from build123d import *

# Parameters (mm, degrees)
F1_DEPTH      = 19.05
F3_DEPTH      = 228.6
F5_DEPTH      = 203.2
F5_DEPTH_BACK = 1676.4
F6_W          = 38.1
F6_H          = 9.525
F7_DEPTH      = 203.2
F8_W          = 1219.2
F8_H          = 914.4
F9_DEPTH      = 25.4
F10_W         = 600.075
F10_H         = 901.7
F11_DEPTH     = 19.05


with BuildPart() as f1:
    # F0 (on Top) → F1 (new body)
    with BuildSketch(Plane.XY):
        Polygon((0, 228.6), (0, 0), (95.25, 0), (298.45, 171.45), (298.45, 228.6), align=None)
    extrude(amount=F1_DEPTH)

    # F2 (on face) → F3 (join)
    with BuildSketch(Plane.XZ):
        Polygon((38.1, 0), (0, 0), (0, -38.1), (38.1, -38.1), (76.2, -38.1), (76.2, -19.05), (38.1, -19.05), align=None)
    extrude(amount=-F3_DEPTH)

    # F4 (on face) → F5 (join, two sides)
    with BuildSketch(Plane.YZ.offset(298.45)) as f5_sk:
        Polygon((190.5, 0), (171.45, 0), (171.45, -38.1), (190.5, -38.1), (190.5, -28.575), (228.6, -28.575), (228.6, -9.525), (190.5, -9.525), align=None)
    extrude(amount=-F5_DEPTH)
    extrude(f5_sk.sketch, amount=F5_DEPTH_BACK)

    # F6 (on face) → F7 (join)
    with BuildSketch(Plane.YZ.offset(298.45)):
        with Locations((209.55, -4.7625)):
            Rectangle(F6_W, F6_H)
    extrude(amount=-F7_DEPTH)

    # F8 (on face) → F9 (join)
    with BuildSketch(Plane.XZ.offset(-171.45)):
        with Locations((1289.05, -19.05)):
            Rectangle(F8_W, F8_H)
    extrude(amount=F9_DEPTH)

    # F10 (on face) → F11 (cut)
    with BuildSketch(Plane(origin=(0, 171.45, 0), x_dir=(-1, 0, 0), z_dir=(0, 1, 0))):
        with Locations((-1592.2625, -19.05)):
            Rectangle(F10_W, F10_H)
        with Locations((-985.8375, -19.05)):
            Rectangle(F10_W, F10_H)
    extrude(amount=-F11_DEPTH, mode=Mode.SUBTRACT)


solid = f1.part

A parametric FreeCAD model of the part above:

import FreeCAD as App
import Part
import Sketcher

V = App.Vector
Q = App.Units.Quantity


def add_polygon(sketch, points):
    """Adds a closed chain of lines whose ends are joined by coincident constraints."""
    first, n = sketch.GeometryCount, len(points)
    for a, b in zip(points, points[1:] + points[:1]):
        sketch.addGeometry(Part.LineSegment(App.Vector(*a, 0), App.Vector(*b, 0)), False)
    for i in range(n):
        sketch.addConstraint(Sketcher.Constraint("Coincident", first + i, 2, first + (i + 1) % n, 1))

doc = App.newDocument("Part")
body = doc.addObject("PartDesign::Body", "Body")

# Sketch on XY plane
sketch1 = body.newObject("Sketcher::SketchObject", "Sketch")
sketch1.AttachmentSupport = (doc.getObject("XY_Plane"), [""])
sketch1.MapMode = "FlatFace"
add_polygon(sketch1, [(0, 228.6), (0, 0), (95.25, 0), (298.45, 171.45), (298.45, 228.6)])  # lines 0-4
sketch1.addConstraint(Sketcher.Constraint("Vertical", 0))
sketch1.addConstraint(Sketcher.Constraint("Horizontal", 1))
sketch1.addConstraint(Sketcher.Constraint("Vertical", 3))
sketch1.addConstraint(Sketcher.Constraint("Horizontal", 4))
sketch1.addConstraint(Sketcher.Constraint("Coincident", 0, 2, -1, 1))
sketch1.addConstraint(Sketcher.Constraint("DistanceY", 0, 2, 0, 1, Q("9 in")))
sketch1.addConstraint(Sketcher.Constraint("DistanceX", 1, 2, 2, 2, Q("8 in")))
sketch1.addConstraint(Sketcher.Constraint("DistanceX", 1, 1, 1, 2, Q("3.75 in")))
sketch1.addConstraint(Sketcher.Constraint("DistanceY", 3, 1, 3, 2, Q("2.25 in")))
pad1 = body.newObject("PartDesign::Pad", "Pad")
pad1.Profile = sketch1
pad1.Length = Q("0.75 in")

# Sketch on XZ plane
sketch2 = body.newObject("Sketcher::SketchObject", "Sketch001")
sketch2.AttachmentSupport = (doc.getObject("XZ_Plane"), [""])
sketch2.MapMode = "FlatFace"
add_polygon(sketch2, [(38.1, 0), (0, 0), (0, -38.1), (76.2, -38.1), (76.2, -19.05), (38.1, -19.05)])  # lines 0-5
sketch2.addConstraint(Sketcher.Constraint("Horizontal", 0))
sketch2.addConstraint(Sketcher.Constraint("Vertical", 1))
sketch2.addConstraint(Sketcher.Constraint("Horizontal", 2))
sketch2.addConstraint(Sketcher.Constraint("Vertical", 3))
sketch2.addConstraint(Sketcher.Constraint("Horizontal", 4))
sketch2.addConstraint(Sketcher.Constraint("Vertical", 5))
sketch2.addConstraint(Sketcher.Constraint("Coincident", 0, 2, -1, 1))
sketch2.addConstraint(Sketcher.Constraint("Equal", 0, 4))
sketch2.addConstraint(Sketcher.Constraint("Equal", 4, 1))
sketch2.addConstraint(Sketcher.Constraint("Equal", 3, 5))
sketch2.addConstraint(Sketcher.Constraint("DistanceX", 2, 1, 2, 2, Q("3 in")))
pad2 = body.newObject("PartDesign::Pad", "Pad001")
pad2.Profile = sketch2
pad2.Length = Q("9 in")
pad2.Reversed = True

# Sketch on YZ plane
sketch3 = body.newObject("Sketcher::SketchObject", "Sketch002")
sketch3.AttachmentSupport = (doc.getObject("YZ_Plane"), [""])
sketch3.MapMode = "FlatFace"
sketch3.AttachmentOffset = App.Placement(V(0, 0, 11.75 * 25.4), App.Rotation())
add_polygon(sketch3, [(190.5, 0), (171.45, 0), (171.45, -38.1), (190.5, -38.1), (190.5, -28.575), (228.6, -28.575), (228.6, -9.525), (190.5, -9.525)])  # lines 0-7
sketch3.addConstraint(Sketcher.Constraint("Horizontal", 0))
sketch3.addConstraint(Sketcher.Constraint("Vertical", 1))
sketch3.addConstraint(Sketcher.Constraint("Horizontal", 2))
sketch3.addConstraint(Sketcher.Constraint("Vertical", 3))
sketch3.addConstraint(Sketcher.Constraint("Horizontal", 4))
sketch3.addConstraint(Sketcher.Constraint("Vertical", 5))
sketch3.addConstraint(Sketcher.Constraint("Horizontal", 6))
sketch3.addConstraint(Sketcher.Constraint("Vertical", 7))
sketch3.addConstraint(Sketcher.Constraint("PointOnObject", 0, 2, -1))
sketch3.addConstraint(Sketcher.Constraint("Vertical", 3, 2, 6, 2))
sketch3.addConstraint(Sketcher.Constraint("Equal", 6, 1))
sketch3.addConstraint(Sketcher.Constraint("Equal", 2, 5))
sketch3.addConstraint(Sketcher.Constraint("Equal", 3, 7))
sketch3.addConstraint(Sketcher.Constraint("DistanceX", 4, 1, 4, 2, Q("1.5 in")))
sketch3.addConstraint(Sketcher.Constraint("DistanceX", -1, 1, 4, 2, Q("9 in")))
sketch3.addConstraint(Sketcher.Constraint("DistanceX", 0, 2, 0, 1, Q("0.75 in")))
pad3 = body.newObject("PartDesign::Pad", "Pad002")
pad3.Profile = sketch3
pad3.Type = "TwoLengths"
pad3.Length = Q("8 in")
pad3.Length2 = Q("66 in")
pad3.Reversed = True

# Sketch on YZ plane
sketch4 = body.newObject("Sketcher::SketchObject", "Sketch003")
sketch4.AttachmentSupport = (doc.getObject("YZ_Plane"), [""])
sketch4.MapMode = "FlatFace"
sketch4.AttachmentOffset = App.Placement(V(0, 0, 11.75 * 25.4), App.Rotation())
add_polygon(sketch4, [(190.5, 0), (190.5, -9.525), (228.6, -9.525), (228.6, 0)])  # lines 0-3
sketch4.addConstraint(Sketcher.Constraint("Vertical", 0))
sketch4.addConstraint(Sketcher.Constraint("Horizontal", 1))
sketch4.addConstraint(Sketcher.Constraint("Vertical", 2))
sketch4.addConstraint(Sketcher.Constraint("Horizontal", 3))
sketch4.addConstraint(Sketcher.Constraint("PointOnObject", 2, 2, -1))
sketch4.addConstraint(Sketcher.Constraint("DistanceX", 1, 1, 1, 2, Q("1.5 in")))
sketch4.addConstraint(Sketcher.Constraint("DistanceX", -1, 1, 1, 2, Q("9 in")))
sketch4.addConstraint(Sketcher.Constraint("DistanceY", 0, 2, 0, 1, Q("0.375 in")))
pad4 = body.newObject("PartDesign::Pad", "Pad003")
pad4.Profile = sketch4
pad4.Length = Q("8 in")
pad4.Reversed = True

# Sketch on XZ plane
sketch5 = body.newObject("Sketcher::SketchObject", "Sketch004")
sketch5.AttachmentSupport = (doc.getObject("XZ_Plane"), [""])
sketch5.MapMode = "FlatFace"
sketch5.AttachmentOffset = App.Placement(V(0, 0, -6.75 * 25.4), App.Rotation())
add_polygon(sketch5, [(679.45, 438.15), (679.45, -476.25), (1898.65, -476.25), (1898.65, 438.15)])  # lines 0-3
sketch5.addConstraint(Sketcher.Constraint("Vertical", 0))
sketch5.addConstraint(Sketcher.Constraint("Horizontal", 1))
sketch5.addConstraint(Sketcher.Constraint("Vertical", 2))
sketch5.addConstraint(Sketcher.Constraint("Horizontal", 3))
sketch5.addConstraint(Sketcher.Constraint("DistanceX", 1, 1, 1, 2, Q("48 in")))
sketch5.addConstraint(Sketcher.Constraint("DistanceY", 0, 2, 0, 1, Q("36 in")))
sketch5.addConstraint(Sketcher.Constraint("DistanceX", -1, 1, 0, 2, Q("26.75 in")))
sketch5.addConstraint(Sketcher.Constraint("DistanceY", 0, 2, -1, 1, Q("18.75 in")))
pad5 = body.newObject("PartDesign::Pad", "Pad004")
pad5.Profile = sketch5
pad5.Length = Q("1 in")

# Sketch on XZ plane
sketch6 = body.newObject("Sketcher::SketchObject", "Sketch005")
sketch6.AttachmentSupport = (doc.getObject("XZ_Plane"), [""])
sketch6.MapMode = "FlatFace"
sketch6.AttachmentOffset = App.Placement(V(0, 0, -6.75 * 25.4), App.Rotation())
add_polygon(sketch6, [(1892.3, 431.8), (1892.3, -469.9), (1292.225, -469.9), (1292.225, 431.8)])  # lines 0-3
add_polygon(sketch6, [(1285.875, 431.8), (1285.875, -469.9), (685.8, -469.9), (685.8, 431.8)])  # lines 4-7
sketch6.addConstraint(Sketcher.Constraint("Vertical", 0))
sketch6.addConstraint(Sketcher.Constraint("Horizontal", 1))
sketch6.addConstraint(Sketcher.Constraint("Vertical", 2))
sketch6.addConstraint(Sketcher.Constraint("Horizontal", 3))
sketch6.addConstraint(Sketcher.Constraint("Vertical", 4))
sketch6.addConstraint(Sketcher.Constraint("Horizontal", 5))
sketch6.addConstraint(Sketcher.Constraint("Vertical", 6))
sketch6.addConstraint(Sketcher.Constraint("Horizontal", 7))
sketch6.addConstraint(Sketcher.Constraint("Horizontal", 1, 2, 4, 2))
sketch6.addConstraint(Sketcher.Constraint("Horizontal", 3, 2, 6, 2))
sketch6.addConstraint(Sketcher.Constraint("Equal", 3, 5))
sketch6.addConstraint(Sketcher.Constraint("DistanceY", 0, 2, 0, 1, Q("35.5 in")))
sketch6.addConstraint(Sketcher.Constraint("DistanceY", -1, 1, 2, 2, Q("17 in")))
sketch6.addConstraint(Sketcher.Constraint("DistanceX", -1, 1, 5, 2, Q("27 in")))
sketch6.addConstraint(Sketcher.Constraint("DistanceX", -1, 1, 0, 2, Q("74.5 in")))
sketch6.addConstraint(Sketcher.Constraint("DistanceX", 1, 2, 1, 1, Q("23.625 in")))
pocket1 = body.newObject("PartDesign::Pocket", "Pocket")
pocket1.Profile = sketch6
pocket1.Length = Q("0.75 in")
pocket1.Reversed = True

doc.recompute()
